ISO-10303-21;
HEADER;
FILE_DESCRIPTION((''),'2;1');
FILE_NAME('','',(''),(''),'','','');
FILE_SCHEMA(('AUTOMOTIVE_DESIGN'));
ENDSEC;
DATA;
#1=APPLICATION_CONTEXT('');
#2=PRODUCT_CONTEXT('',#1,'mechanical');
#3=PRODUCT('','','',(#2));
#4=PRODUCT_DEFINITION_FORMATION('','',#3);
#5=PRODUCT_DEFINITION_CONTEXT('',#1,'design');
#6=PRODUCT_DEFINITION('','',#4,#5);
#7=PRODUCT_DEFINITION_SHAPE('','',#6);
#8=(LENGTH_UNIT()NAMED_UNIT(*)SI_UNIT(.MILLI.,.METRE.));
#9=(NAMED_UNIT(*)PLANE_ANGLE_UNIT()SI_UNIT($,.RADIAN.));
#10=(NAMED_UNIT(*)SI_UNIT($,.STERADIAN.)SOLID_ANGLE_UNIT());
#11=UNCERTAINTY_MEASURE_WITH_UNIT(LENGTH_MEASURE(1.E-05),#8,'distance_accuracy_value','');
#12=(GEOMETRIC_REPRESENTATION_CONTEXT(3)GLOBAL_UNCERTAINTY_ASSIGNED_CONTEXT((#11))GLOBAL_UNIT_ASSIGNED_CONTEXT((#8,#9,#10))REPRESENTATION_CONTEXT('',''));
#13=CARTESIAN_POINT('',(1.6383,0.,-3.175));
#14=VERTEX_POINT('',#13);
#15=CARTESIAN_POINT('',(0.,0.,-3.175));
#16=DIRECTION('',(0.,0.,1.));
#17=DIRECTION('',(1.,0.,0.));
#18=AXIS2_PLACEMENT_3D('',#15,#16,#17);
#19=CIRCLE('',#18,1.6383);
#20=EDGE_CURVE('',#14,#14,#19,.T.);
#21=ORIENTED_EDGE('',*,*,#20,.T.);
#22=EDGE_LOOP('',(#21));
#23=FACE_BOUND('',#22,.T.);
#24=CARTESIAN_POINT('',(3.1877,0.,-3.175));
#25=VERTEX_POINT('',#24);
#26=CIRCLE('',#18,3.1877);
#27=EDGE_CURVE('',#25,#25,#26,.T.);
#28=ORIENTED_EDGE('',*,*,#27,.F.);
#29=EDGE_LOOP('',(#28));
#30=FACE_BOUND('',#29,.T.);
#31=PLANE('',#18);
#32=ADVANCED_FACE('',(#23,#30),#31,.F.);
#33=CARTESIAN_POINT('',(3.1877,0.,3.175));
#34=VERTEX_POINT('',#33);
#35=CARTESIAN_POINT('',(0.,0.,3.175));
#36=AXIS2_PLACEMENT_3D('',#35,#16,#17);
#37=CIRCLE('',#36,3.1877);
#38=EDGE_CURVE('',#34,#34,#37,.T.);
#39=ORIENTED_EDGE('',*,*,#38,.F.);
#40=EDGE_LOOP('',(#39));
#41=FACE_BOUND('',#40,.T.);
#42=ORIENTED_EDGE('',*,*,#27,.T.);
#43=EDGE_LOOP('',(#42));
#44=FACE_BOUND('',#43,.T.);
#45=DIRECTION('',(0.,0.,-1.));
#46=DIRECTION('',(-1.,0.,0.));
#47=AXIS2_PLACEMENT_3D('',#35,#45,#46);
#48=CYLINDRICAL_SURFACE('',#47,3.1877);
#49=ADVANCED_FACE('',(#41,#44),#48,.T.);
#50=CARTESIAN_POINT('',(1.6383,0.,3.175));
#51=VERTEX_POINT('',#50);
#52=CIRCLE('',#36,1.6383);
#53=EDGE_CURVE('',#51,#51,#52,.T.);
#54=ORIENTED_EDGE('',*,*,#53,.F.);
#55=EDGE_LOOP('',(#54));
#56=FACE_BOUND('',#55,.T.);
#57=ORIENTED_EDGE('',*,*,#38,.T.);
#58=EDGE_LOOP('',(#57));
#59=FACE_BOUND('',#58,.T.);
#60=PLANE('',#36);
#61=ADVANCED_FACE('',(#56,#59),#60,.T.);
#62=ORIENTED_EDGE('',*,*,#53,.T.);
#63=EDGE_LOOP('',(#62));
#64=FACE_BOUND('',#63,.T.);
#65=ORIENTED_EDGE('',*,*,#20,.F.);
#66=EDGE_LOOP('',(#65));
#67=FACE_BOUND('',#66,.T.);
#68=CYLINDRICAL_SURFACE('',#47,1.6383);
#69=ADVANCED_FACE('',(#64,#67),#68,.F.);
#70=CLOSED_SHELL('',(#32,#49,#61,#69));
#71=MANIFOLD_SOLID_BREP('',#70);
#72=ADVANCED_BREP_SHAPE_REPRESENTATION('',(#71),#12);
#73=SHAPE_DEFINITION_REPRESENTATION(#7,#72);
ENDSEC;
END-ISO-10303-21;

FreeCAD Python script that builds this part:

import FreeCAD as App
import Part
import Sketcher
Q = App.Units.Quantity

doc = App.newDocument("Part")
params = doc.addObject("Spreadsheet::Sheet", "Params")
for row, (alias, value) in enumerate([
    ("sketch1_diameter", "0.251 in"),
    ("sketch1_diameter2", "0.129 in"),
    ("pad1_length", "0.25 in"),
], start=1):
    params.set(f"A{row}", alias)
    params.set(f"B{row}", "=" + value)
    params.setAlias(f"B{row}", alias)

body = doc.addObject("PartDesign::Body", "Body")

sketch1 = body.newObject("Sketcher::SketchObject", "Sketch")
sketch1.AttachmentSupport = (doc.getObject("XY_Plane"), [""])
sketch1.MapMode = "FlatFace"
sketch1.addGeometry([
    Part.Circle(App.Vector(0, 0, 0), App.Vector(0, 0, 1), 3.2),
    Part.Circle(App.Vector(0, 0, 0), App.Vector(0, 0, 1), 1.6),
], False)
sketch1.addConstraint([
    Sketcher.Constraint("Coincident", 0, 3, -1, 1),
    Sketcher.Constraint("Coincident", 1, 3, -1, 1),
    Sketcher.Constraint("Diameter", 0, Q("0.251 in")),
    Sketcher.Constraint("Diameter", 1, Q("0.129 in")),
])
sketch1.setExpression("Constraints[2]", "Params.sketch1_diameter")
sketch1.setExpression("Constraints[3]", "Params.sketch1_diameter2")
pad1 = body.newObject("PartDesign::Pad", "Pad")
pad1.Profile = sketch1
pad1.setExpression("Length", "Params.pad1_length")
pad1.Midplane = True

doc.recompute()
